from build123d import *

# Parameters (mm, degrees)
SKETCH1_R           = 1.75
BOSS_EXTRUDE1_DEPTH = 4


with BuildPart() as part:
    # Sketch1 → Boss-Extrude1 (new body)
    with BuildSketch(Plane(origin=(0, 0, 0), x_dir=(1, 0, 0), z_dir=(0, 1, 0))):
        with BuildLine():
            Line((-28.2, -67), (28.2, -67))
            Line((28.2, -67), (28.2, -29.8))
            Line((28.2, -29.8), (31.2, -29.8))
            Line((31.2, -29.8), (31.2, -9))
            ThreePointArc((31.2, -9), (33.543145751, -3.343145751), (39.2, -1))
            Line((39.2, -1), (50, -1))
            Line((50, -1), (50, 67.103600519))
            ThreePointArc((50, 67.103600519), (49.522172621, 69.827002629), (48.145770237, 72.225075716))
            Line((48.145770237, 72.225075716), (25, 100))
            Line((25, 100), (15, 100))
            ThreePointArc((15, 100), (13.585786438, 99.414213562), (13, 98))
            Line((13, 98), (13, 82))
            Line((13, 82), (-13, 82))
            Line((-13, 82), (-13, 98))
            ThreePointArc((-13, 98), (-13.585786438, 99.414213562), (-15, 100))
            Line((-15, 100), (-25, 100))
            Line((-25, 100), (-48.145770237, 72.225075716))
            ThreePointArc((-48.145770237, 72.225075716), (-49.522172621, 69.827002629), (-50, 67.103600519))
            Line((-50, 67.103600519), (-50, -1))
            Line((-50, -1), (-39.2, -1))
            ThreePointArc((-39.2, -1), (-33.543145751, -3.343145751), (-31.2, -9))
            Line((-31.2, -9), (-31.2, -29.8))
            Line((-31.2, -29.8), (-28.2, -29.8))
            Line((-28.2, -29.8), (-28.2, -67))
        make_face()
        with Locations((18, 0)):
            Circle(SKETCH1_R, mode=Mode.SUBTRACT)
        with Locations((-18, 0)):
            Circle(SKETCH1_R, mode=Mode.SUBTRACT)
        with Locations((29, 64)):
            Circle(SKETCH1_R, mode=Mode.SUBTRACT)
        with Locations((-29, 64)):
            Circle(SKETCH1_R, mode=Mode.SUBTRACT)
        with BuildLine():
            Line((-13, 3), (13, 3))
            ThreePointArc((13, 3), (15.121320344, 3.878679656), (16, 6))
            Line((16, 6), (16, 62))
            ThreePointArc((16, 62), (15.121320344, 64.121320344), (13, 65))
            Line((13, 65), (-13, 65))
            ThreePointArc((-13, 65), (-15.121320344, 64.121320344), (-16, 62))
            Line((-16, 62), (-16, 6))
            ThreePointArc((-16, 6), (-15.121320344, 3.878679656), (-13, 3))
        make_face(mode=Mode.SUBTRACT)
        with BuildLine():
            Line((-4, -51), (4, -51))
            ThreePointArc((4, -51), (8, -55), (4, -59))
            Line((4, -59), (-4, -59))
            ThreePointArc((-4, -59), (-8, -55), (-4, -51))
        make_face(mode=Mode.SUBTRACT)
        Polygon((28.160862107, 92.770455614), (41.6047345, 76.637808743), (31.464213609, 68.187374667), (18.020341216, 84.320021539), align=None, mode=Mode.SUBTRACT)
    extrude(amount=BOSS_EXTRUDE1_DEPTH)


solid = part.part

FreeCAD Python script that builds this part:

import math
import FreeCAD as App
import Part
import Sketcher
from FreeCAD import Vector


def add_polygon(sketch, points):
    """Adds a closed chain of lines whose ends are joined by coincident constraints."""
    first, n = sketch.GeometryCount, len(points)
    for a, b in zip(points, points[1:] + points[:1]):
        sketch.addGeometry(Part.LineSegment(App.Vector(*a, 0), App.Vector(*b, 0)), False)
    for i in range(n):
        sketch.addConstraint(Sketcher.Constraint("Coincident", first + i, 2, first + (i + 1) % n, 1))

doc = App.newDocument("Part")
body = doc.addObject("PartDesign::Body", "Body")

# Sketch on XZ plane
sketch1 = body.newObject("Sketcher::SketchObject", "Sketch")
sketch1.AttachmentSupport = (doc.getObject("XZ_Plane"), [""])
sketch1.MapMode = "FlatFace"
sketch1.addGeometry(Part.LineSegment(Vector(-28.2, 67, 0), Vector(28.2, 67, 0)), False)  # 0
sketch1.addGeometry(Part.LineSegment(Vector(28.2, 67, 0), Vector(28.2, 29.8, 0)), False)  # 1
sketch1.addGeometry(Part.LineSegment(Vector(28.2, 29.8, 0), Vector(31.2, 29.8, 0)), False)  # 2
sketch1.addGeometry(Part.LineSegment(Vector(31.2, 29.8, 0), Vector(31.2, 9, 0)), False)  # 3
sketch1.addGeometry(Part.ArcOfCircle(Part.Circle(Vector(39.2, 9, 0), Vector(0, 0, 1), 8), math.radians(-180), math.radians(-90)), False)  # 4
sketch1.addGeometry(Part.LineSegment(Vector(39.2, 1, 0), Vector(50, 1, 0)), False)  # 5
sketch1.addGeometry(Part.LineSegment(Vector(50, 1, 0), Vector(50, -67.1, 0)), False)  # 6
sketch1.addGeometry(Part.ArcOfCircle(Part.Circle(Vector(42, -67.1, 0), Vector(0, 0, 1), 8), math.radians(-40), math.radians(0)), False)  # 7
sketch1.addGeometry(Part.LineSegment(Vector(48.1, -72.2, 0), Vector(25, -100, 0)), False)  # 8
sketch1.addGeometry(Part.LineSegment(Vector(25, -100, 0), Vector(15, -100, 0)), False)  # 9
sketch1.addGeometry(Part.ArcOfCircle(Part.Circle(Vector(15, -98, 0), Vector(0, 0, 1), 2), math.radians(-180), math.radians(-90)), False)  # 10
sketch1.addGeometry(Part.LineSegment(Vector(13, -98, 0), Vector(13, -82, 0)), False)  # 11
sketch1.addGeometry(Part.LineSegment(Vector(13, -82, 0), Vector(-13, -82, 0)), False)  # 12
sketch1.addGeometry(Part.LineSegment(Vector(-13, -82, 0), Vector(-13, -98, 0)), False)  # 13
sketch1.addGeometry(Part.ArcOfCircle(Part.Circle(Vector(-15, -98, 0), Vector(0, 0, 1), 2), math.radians(-90), math.radians(0)), False)  # 14
sketch1.addGeometry(Part.LineSegment(Vector(-15, -100, 0), Vector(-25, -100, 0)), False)  # 15
sketch1.addGeometry(Part.LineSegment(Vector(-25, -100, 0), Vector(-48.1, -72.2, 0)), False)  # 16
sketch1.addGeometry(Part.ArcOfCircle(Part.Circle(Vector(-42, -67.1, 0), Vector(0, 0, 1), 8), math.radians(-180), math.radians(-140)), False)  # 17
sketch1.addGeometry(Part.LineSegment(Vector(-50, -67.1, 0), Vector(-50, 1, 0)), False)  # 18
sketch1.addGeometry(Part.LineSegment(Vector(-50, 1, 0), Vector(-39.2, 1, 0)), False)  # 19
sketch1.addGeometry(Part.ArcOfCircle(Part.Circle(Vector(-39.2, 9, 0), Vector(0, 0, 1), 8), math.radians(-90), math.radians(0)), False)  # 20
sketch1.addGeometry(Part.LineSegment(Vector(-31.2, 9, 0), Vector(-31.2, 29.8, 0)), False)  # 21
sketch1.addGeometry(Part.LineSegment(Vector(-31.2, 29.8, 0), Vector(-28.2, 29.8, 0)), False)  # 22
sketch1.addGeometry(Part.LineSegment(Vector(-28.2, 29.8, 0), Vector(-28.2, 67, 0)), False)  # 23
sketch1.addGeometry(Part.ArcOfCircle(Part.Circle(Vector(-4, 55, 0), Vector(0, 0, 1), 4), math.radians(90), math.radians(270)), False)  # 24
sketch1.addGeometry(Part.LineSegment(Vector(-4, 51, 0), Vector(4, 51, 0)), False)  # 25
sketch1.addGeometry(Part.ArcOfCircle(Part.Circle(Vector(4, 55, 0), Vector(0, 0, 1), 4), math.radians(-90), math.radians(90)), False)  # 26
sketch1.addGeometry(Part.LineSegment(Vector(4, 59, 0), Vector(-4, 59, 0)), False)  # 27
sketch1.addGeometry(Part.Circle(Vector(-18, 0, 0), Vector(0, 0, 1), 1.8), False)  # 28
sketch1.addGeometry(Part.Circle(Vector(18, 0, 0), Vector(0, 0, 1), 1.8), False)  # 29
sketch1.addGeometry(Part.LineSegment(Vector(13, -3, 0), Vector(-13, -3, 0)), False)  # 30
sketch1.addGeometry(Part.ArcOfCircle(Part.Circle(Vector(-13, -6, 0), Vector(0, 0, 1), 3), math.radians(90), math.radians(180)), False)  # 31
sketch1.addGeometry(Part.LineSegment(Vector(-16, -6, 0), Vector(-16, -62, 0)), False)  # 32
sketch1.addGeometry(Part.ArcOfCircle(Part.Circle(Vector(-13, -62, 0), Vector(0, 0, 1), 3), math.radians(180), math.radians(270)), False)  # 33
sketch1.addGeometry(Part.LineSegment(Vector(-13, -65, 0), Vector(13, -65, 0)), False)  # 34
sketch1.addGeometry(Part.ArcOfCircle(Part.Circle(Vector(13, -62, 0), Vector(0, 0, 1), 3), math.radians(-90), math.radians(0)), False)  # 35
sketch1.addGeometry(Part.LineSegment(Vector(16, -62, 0), Vector(16, -6, 0)), False)  # 36
sketch1.addGeometry(Part.ArcOfCircle(Part.Circle(Vector(13, -6, 0), Vector(0, 0, 1), 3), math.radians(0), math.radians(90)), False)  # 37
sketch1.addGeometry(Part.Circle(Vector(-29, -64, 0), Vector(0, 0, 1), 1.8), False)  # 38
sketch1.addGeometry(Part.Circle(Vector(29, -64, 0), Vector(0, 0, 1), 1.8), False)  # 39
add_polygon(sketch1, [(18, -84.3), (28.2, -92.8), (41.6, -76.6), (31.5, -68.2)])  # lines 40-43
sketch1.addConstraint([
    Sketcher.Constraint("Coincident", 0, 2, 1, 1),
    Sketcher.Constraint("Coincident", 1, 2, 2, 1),
    Sketcher.Constraint("Coincident", 2, 2, 3, 1),
    Sketcher.Constraint("Tangent", 3, 2, 4, 1),
    Sketcher.Constraint("Tangent", 4, 2, 5, 1),
    Sketcher.Constraint("Coincident", 5, 2, 6, 1),
    Sketcher.Constraint("Tangent", 6, 2, 7, 2),
    Sketcher.Constraint("Tangent", 7, 1, 8, 1),
    Sketcher.Constraint("Coincident", 8, 2, 9, 1),
    Sketcher.Constraint("Tangent", 9, 2, 10, 2),
    Sketcher.Constraint("Tangent", 10, 1, 11, 1),
    Sketcher.Constraint("Coincident", 11, 2, 12, 1),
    Sketcher.Constraint("Coincident", 12, 2, 13, 1),
    Sketcher.Constraint("Tangent", 13, 2, 14, 2),
    Sketcher.Constraint("Tangent", 14, 1, 15, 1),
    Sketcher.Constraint("Coincident", 15, 2, 16, 1),
    Sketcher.Constraint("Tangent", 16, 2, 17, 2),
    Sketcher.Constraint("Tangent", 17, 1, 18, 1),
    Sketcher.Constraint("Coincident", 18, 2, 19, 1),
    Sketcher.Constraint("Tangent", 19, 2, 20, 1),
    Sketcher.Constraint("Tangent", 20, 2, 21, 1),
    Sketcher.Constraint("Coincident", 21, 2, 22, 1),
    Sketcher.Constraint("Coincident", 22, 2, 23, 1),
    Sketcher.Constraint("Coincident", 23, 2, 0, 1),
    Sketcher.Constraint("Tangent", 24, 2, 25, 1),
    Sketcher.Constraint("Tangent", 25, 2, 26, 1),
    Sketcher.Constraint("Tangent", 26, 2, 27, 1),
    Sketcher.Constraint("Tangent", 27, 2, 24, 1),
    Sketcher.Constraint("Tangent", 30, 2, 31, 1),
    Sketcher.Constraint("Tangent", 31, 2, 32, 1),
    Sketcher.Constraint("Tangent", 32, 2, 33, 1),
    Sketcher.Constraint("Tangent", 33, 2, 34, 1),
    Sketcher.Constraint("Tangent", 34, 2, 35, 1),
    Sketcher.Constraint("Tangent", 35, 2, 36, 1),
    Sketcher.Constraint("Tangent", 36, 2, 37, 1),
    Sketcher.Constraint("Tangent", 37, 2, 30, 1),
    Sketcher.Constraint("Horizontal", 0),
    Sketcher.Constraint("Vertical", 1),
    Sketcher.Constraint("Horizontal", 2),
    Sketcher.Constraint("Vertical", 3),
    Sketcher.Constraint("Horizontal", 5),
    Sketcher.Constraint("Vertical", 6),
    Sketcher.Constraint("Horizontal", 9),
    Sketcher.Constraint("Vertical", 11),
    Sketcher.Constraint("Horizontal", 12),
    Sketcher.Constraint("Vertical", 13),
    Sketcher.Constraint("Horizontal", 15),
    Sketcher.Constraint("Vertical", 18),
    Sketcher.Constraint("Horizontal", 19),
    Sketcher.Constraint("Vertical", 21),
    Sketcher.Constraint("Horizontal", 22),
    Sketcher.Constraint("Vertical", 23),
    Sketcher.Constraint("Horizontal", 25),
    Sketcher.Constraint("Horizontal", 27),
    Sketcher.Constraint("Horizontal", 30),
    Sketcher.Constraint("Vertical", 32),
    Sketcher.Constraint("Horizontal", 34),
    Sketcher.Constraint("Vertical", 36),
    Sketcher.Constraint("Equal", 4, 7),
    Sketcher.Constraint("Equal", 10, 14),
    Sketcher.Constraint("Equal", 7, 17),
    Sketcher.Constraint("Equal", 17, 20),
    Sketcher.Constraint("Equal", 28, 29),
    Sketcher.Constraint("Equal", 31, 33),
    Sketcher.Constraint("Equal", 33, 35),
    Sketcher.Constraint("Equal", 35, 37),
    Sketcher.Constraint("Equal", 29, 38),
    Sketcher.Constraint("Equal", 38, 39),
    Sketcher.Constraint("Symmetric", 28, 3, 29, 3, -1, 1),
    Sketcher.Constraint("Symmetric", 10, 3, 14, 3, -2),
    Sketcher.Constraint("Symmetric", 7, 3, 17, 3, -2),
    Sketcher.Constraint("Symmetric", 4, 3, 20, 3, -2),
    Sketcher.Constraint("Symmetric", 38, 3, 39, 3, -2),
    Sketcher.Constraint("Symmetric", 1, 2, 22, 2, -2),
    Sketcher.Constraint("PointOnObject", 28, 3, -1),
    Sketcher.Constraint("Perpendicular", 8, 40),
    Sketcher.Constraint("Perpendicular", 40, 41),
    Sketcher.Constraint("Perpendicular", 41, 42),
    Sketcher.Constraint("Perpendicular", 42, 43),
    Sketcher.Constraint("Horizontal", 7, 1, 16, 2),
    Sketcher.Constraint("Vertical", 37, 3, 10, 1),
    Sketcher.Constraint("Vertical", 33, 3, 12, 2),
    Sketcher.Constraint("Radius", 4, 8.0),
    Sketcher.Constraint("Radius", 10, 2.0),
    Sketcher.Constraint("Radius", 24, 4.0),
    Sketcher.Constraint("Radius", 31, 3.0),
    Sketcher.Constraint("Diameter", 28, 3.5),
    Sketcher.Constraint("DistanceX", 2, 1, 2, 2, 3.0),
    Sketcher.Constraint("DistanceX", 9, 2, 9, 1, 10.0),
    Sketcher.Constraint("DistanceX", 12, 2, 12, 1, 26.0),
    Sketcher.Constraint("DistanceX", 25, 1, 25, 2, 8.0),
    Sketcher.Constraint("DistanceY", 11, 1, 11, 2, 16.0),
    Sketcher.Constraint("DistanceY", 32, 2, 32, 1, 56.0),
    Sketcher.Constraint("Distance", 41, 21.0),
    Sketcher.Constraint("DistanceX", 0, 1, 0, 2, 56.4),
    Sketcher.Constraint("DistanceX", 5, 1, 5, 2, 10.8),
    Sketcher.Constraint("DistanceY", 1, 2, 1, 1, 37.2),
    Sketcher.Constraint("DistanceY", 3, 2, 3, 1, 20.8),
    Sketcher.Constraint("DistanceY", -1, 1, 4, 3, 9.0),
    Sketcher.Constraint("DistanceY", 10, 3, -1, 1, 98.0),
    Sketcher.Constraint("DistanceX", 24, 3, -1, 1, 4.0),
    Sketcher.Constraint("DistanceY", -1, 1, 24, 3, 55.0),
    Sketcher.Constraint("DistanceX", 28, 3, -1, 1, 18.0),
    Sketcher.Constraint("DistanceY", 31, 3, -1, 1, 6.0),
    Sketcher.Constraint("DistanceX", 38, 3, -1, 1, 29.0),
    Sketcher.Constraint("DistanceY", 38, 3, -1, 1, 64.0),
    Sketcher.Constraint("Distance", 40, 13.2),
    Sketcher.Constraint("DistanceY", 6, 2, 6, 1, 68.103601),
    Sketcher.Constraint("DistanceY", 7, 1, 42, 2, 4.037701),
    Sketcher.Constraint("DistanceX", -1, 1, 43, 2, 18.020341),
])
pad1 = body.newObject("PartDesign::Pad", "Pad")
pad1.Profile = sketch1
pad1.Length = 4
pad1.Reversed = True

doc.recompute()
